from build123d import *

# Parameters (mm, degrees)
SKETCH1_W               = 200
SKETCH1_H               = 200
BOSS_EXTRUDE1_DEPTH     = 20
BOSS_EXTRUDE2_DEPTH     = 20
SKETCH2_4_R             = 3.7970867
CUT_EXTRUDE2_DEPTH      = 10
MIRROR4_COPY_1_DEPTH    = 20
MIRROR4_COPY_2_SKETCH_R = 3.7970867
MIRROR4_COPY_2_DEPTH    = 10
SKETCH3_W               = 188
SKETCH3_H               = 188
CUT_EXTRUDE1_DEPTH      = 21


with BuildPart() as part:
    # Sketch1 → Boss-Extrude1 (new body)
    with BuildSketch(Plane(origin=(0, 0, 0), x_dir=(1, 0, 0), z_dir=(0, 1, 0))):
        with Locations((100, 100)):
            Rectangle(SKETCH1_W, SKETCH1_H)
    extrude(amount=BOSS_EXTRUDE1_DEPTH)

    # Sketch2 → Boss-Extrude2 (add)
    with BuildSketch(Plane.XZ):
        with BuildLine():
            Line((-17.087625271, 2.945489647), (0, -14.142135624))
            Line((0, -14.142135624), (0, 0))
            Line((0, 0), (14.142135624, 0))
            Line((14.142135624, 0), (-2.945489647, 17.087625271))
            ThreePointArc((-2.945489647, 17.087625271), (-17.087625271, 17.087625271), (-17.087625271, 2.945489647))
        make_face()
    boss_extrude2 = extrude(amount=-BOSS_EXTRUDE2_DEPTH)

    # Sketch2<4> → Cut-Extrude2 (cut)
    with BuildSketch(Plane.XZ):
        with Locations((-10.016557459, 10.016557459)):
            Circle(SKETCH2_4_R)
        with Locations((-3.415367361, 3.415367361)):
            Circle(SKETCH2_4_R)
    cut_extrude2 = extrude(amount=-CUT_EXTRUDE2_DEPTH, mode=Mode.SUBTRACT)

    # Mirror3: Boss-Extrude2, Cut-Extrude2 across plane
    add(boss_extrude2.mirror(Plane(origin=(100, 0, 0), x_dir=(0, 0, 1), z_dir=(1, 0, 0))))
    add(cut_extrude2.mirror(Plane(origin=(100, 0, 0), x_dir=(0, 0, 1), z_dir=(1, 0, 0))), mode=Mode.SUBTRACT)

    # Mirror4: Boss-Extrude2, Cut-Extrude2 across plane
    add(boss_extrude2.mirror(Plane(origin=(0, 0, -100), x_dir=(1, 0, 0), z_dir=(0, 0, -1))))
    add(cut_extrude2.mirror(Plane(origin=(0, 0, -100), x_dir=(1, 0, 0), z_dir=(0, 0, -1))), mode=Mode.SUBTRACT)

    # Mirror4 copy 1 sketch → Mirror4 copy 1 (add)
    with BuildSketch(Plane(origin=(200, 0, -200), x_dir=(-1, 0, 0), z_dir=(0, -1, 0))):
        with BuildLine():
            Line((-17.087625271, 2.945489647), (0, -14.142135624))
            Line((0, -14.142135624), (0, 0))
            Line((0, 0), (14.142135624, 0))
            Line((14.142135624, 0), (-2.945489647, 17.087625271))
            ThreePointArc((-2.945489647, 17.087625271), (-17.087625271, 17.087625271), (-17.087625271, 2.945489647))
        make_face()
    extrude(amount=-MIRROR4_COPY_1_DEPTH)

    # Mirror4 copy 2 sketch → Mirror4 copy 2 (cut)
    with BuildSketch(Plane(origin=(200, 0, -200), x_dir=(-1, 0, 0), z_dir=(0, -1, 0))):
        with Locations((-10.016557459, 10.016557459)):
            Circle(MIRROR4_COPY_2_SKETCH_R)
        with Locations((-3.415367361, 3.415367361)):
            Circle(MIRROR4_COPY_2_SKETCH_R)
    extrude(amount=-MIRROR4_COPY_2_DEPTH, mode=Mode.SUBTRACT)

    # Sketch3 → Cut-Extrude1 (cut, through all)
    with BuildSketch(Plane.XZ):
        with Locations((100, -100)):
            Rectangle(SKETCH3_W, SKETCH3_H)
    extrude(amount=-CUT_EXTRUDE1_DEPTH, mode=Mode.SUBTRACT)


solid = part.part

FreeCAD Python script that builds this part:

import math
import FreeCAD as App
import Part
import Sketcher


def add_polygon(sketch, points):
    """Adds a closed chain of lines whose ends are joined by coincident constraints."""
    first, n = sketch.GeometryCount, len(points)
    for a, b in zip(points, points[1:] + points[:1]):
        sketch.addGeometry(Part.LineSegment(App.Vector(*a, 0), App.Vector(*b, 0)), False)
    for i in range(n):
        sketch.addConstraint(Sketcher.Constraint("Coincident", first + i, 2, first + (i + 1) % n, 1))

doc = App.newDocument("Part")
body = doc.addObject("PartDesign::Body", "Body")

sketch1 = body.newObject("Sketcher::SketchObject", "Sketch")
sketch1.AttachmentSupport = (doc.getObject("XZ_Plane"), [""])
sketch1.MapMode = "FlatFace"
add_polygon(sketch1, [(0, -200), (0, 0), (200, 0), (200, -200)])
sketch1.addConstraint(Sketcher.Constraint("Vertical", 0))
sketch1.addConstraint(Sketcher.Constraint("Horizontal", 1))
sketch1.addConstraint(Sketcher.Constraint("Vertical", 2))
sketch1.addConstraint(Sketcher.Constraint("Horizontal", 3))
sketch1.addConstraint(Sketcher.Constraint("Coincident", 0, 2, -1, 1))
sketch1.addConstraint(Sketcher.Constraint("Equal", 3, 0))
sketch1.addConstraint(Sketcher.Constraint("DistanceX", 1, 1, 1, 2, 200.0))
pad1 = body.newObject("PartDesign::Pad", "Pad")
pad1.Profile = sketch1
pad1.Length = 20
pad1.Reversed = True

sketch2 = body.newObject("Sketcher::SketchObject", "Sketch001")
sketch2.AttachmentSupport = (doc.getObject("XZ_Plane"), [""])
sketch2.MapMode = "FlatFace"
sketch2.addGeometry(Part.LineSegment(App.Vector(-17.087625, 2.94549, 0), App.Vector(0, -14.142136, 0)), False)
sketch2.addGeometry(Part.LineSegment(App.Vector(0, -14.142136, 0), App.Vector(0, 0, 0)), False)
sketch2.addGeometry(Part.LineSegment(App.Vector(0, 0, 0), App.Vector(14.142136, 0, 0)), False)
sketch2.addGeometry(Part.LineSegment(App.Vector(14.142136, 0, 0), App.Vector(-2.94549, 17.087625, 0)), False)
sketch2.addGeometry(Part.ArcOfCircle(Part.Circle(App.Vector(-10.016557, 10.016557, 0), App.Vector(0, 0, 1), 10), math.radians(45), math.radians(225)), False)
sketch2.addConstraint(Sketcher.Constraint("Coincident", 0, 2, 1, 1))
sketch2.addConstraint(Sketcher.Constraint("Coincident", 1, 2, 2, 1))
sketch2.addConstraint(Sketcher.Constraint("Coincident", 2, 2, 3, 1))
sketch2.addConstraint(Sketcher.Constraint("Tangent", 3, 2, 4, 1))
sketch2.addConstraint(Sketcher.Constraint("Tangent", 4, 2, 0, 1))
sketch2.addConstraint(Sketcher.Constraint("Vertical", 1))
sketch2.addConstraint(Sketcher.Constraint("Horizontal", 2))
sketch2.addConstraint(Sketcher.Constraint("Coincident", 1, 2, -1, 1))
sketch2.addConstraint(Sketcher.Constraint("Parallel", 0, 3))
sketch2.addConstraint(Sketcher.Constraint("Equal", 2, 1))
sketch2.addConstraint(Sketcher.Constraint("Equal", 0, 3))
sketch2.addConstraint(Sketcher.Constraint("Radius", 4, 10.0))
sketch2.addConstraint(Sketcher.Constraint("Distance", 0, 24.165551))
pad2 = body.newObject("PartDesign::Pad", "Pad001")
pad2.Profile = sketch2
pad2.Length = 20
pad2.Reversed = True

sketch3 = body.newObject("Sketcher::SketchObject", "Sketch002")
sketch3.AttachmentSupport = (doc.getObject("XZ_Plane"), [""])
sketch3.MapMode = "FlatFace"
sketch3.addGeometry(Part.Circle(App.Vector(-10.016557, 10.016557, 0), App.Vector(0, 0, 1), 3.797087), False)
sketch3.addGeometry(Part.Circle(App.Vector(-3.415367, 3.415367, 0), App.Vector(0, 0, 1), 3.797087), False)
sketch3.addConstraint(Sketcher.Constraint("Equal", 0, 1))
sketch3.addConstraint(Sketcher.Constraint("Diameter", 0, 7.594173))
sketch3.addConstraint(Sketcher.Constraint("DistanceX", 0, 3, 1, 3, 6.60119))
sketch3.addConstraint(Sketcher.Constraint("DistanceY", 1, 3, 0, 3, 6.60119))
sketch3.addConstraint(Sketcher.Constraint("DistanceX", 0, 3, -1, 1, 10.016557))
sketch3.addConstraint(Sketcher.Constraint("DistanceY", -1, 1, 0, 3, 10.016557))
pocket1 = body.newObject("PartDesign::Pocket", "Pocket")
pocket1.Profile = sketch3
pocket1.Length = 10
doc.recompute()

datumplane = body.newObject("PartDesign::Plane", "DatumPlane")
datumplane.AttachmentSupport = (doc.getObject("YZ_Plane"), [""])
datumplane.MapMode = "FlatFace"
datumplane.AttachmentOffset = App.Placement(App.Vector(0, 0, 100), App.Rotation())
mirrored = body.newObject("PartDesign::Mirrored", "Mirrored")
mirrored.Originals = [pad2, pocket1]
mirrored.MirrorPlane = (datumplane, [""])
body.Tip = mirrored
doc.recompute()

datumplane2 = body.newObject("PartDesign::Plane", "DatumPlane001")
datumplane2.AttachmentSupport = (doc.getObject("XY_Plane"), [""])
datumplane2.MapMode = "FlatFace"
datumplane2.AttachmentOffset = App.Placement(App.Vector(0, 0, -100), App.Rotation())
mirrored2 = body.newObject("PartDesign::Mirrored", "Mirrored001")
mirrored2.Originals = [pad2, pocket1]
mirrored2.MirrorPlane = (datumplane2, [""])
body.Tip = mirrored2

sketch4 = body.newObject("Sketcher::SketchObject", "Sketch003")
sketch4.AttachmentSupport = (doc.getObject("XZ_Plane"), [""])
sketch4.MapMode = "FlatFace"
sketch4.addGeometry(Part.LineSegment(App.Vector(217.087625, -202.94549, 0), App.Vector(200, -185.857864, 0)), False)
sketch4.addGeometry(Part.LineSegment(App.Vector(200, -185.857864, 0), App.Vector(200, -200, 0)), False)
sketch4.addGeometry(Part.LineSegment(App.Vector(200, -200, 0), App.Vector(185.857864, -200, 0)), False)
sketch4.addGeometry(Part.LineSegment(App.Vector(185.857864, -200, 0), App.Vector(202.94549, -217.087625, 0)), False)
sketch4.addGeometry(Part.ArcOfCircle(Part.Circle(App.Vector(210.016557, -210.016557, 0), App.Vector(0, 0, 1), 10), math.radians(-135), math.radians(45)), False)
sketch4.addConstraint(Sketcher.Constraint("Coincident", 0, 2, 1, 1))
sketch4.addConstraint(Sketcher.Constraint("Coincident", 1, 2, 2, 1))
sketch4.addConstraint(Sketcher.Constraint("Coincident", 2, 2, 3, 1))
sketch4.addConstraint(Sketcher.Constraint("Tangent", 3, 2, 4, 1))
sketch4.addConstraint(Sketcher.Constraint("Tangent", 4, 2, 0, 1))
sketch4.addConstraint(Sketcher.Constraint("Vertical", 1))
sketch4.addConstraint(Sketcher.Constraint("Horizontal", 2))
sketch4.addConstraint(Sketcher.Constraint("Parallel", 0, 3))
sketch4.addConstraint(Sketcher.Constraint("Equal", 2, 1))
sketch4.addConstraint(Sketcher.Constraint("Equal", 0, 3))
sketch4.addConstraint(Sketcher.Constraint("Radius", 4, 10.0))
sketch4.addConstraint(Sketcher.Constraint("DistanceX", -1, 1, 0, 2, 200.0))
sketch4.addConstraint(Sketcher.Constraint("DistanceY", 1, 2, -1, 1, 200.0))
sketch4.addConstraint(Sketcher.Constraint("Distance", 0, 24.165551))
pad3 = body.newObject("PartDesign::Pad", "Pad002")
pad3.Profile = sketch4
pad3.Length = 20
pad3.Reversed = True

sketch5 = body.newObject("Sketcher::SketchObject", "Sketch004")
sketch5.AttachmentSupport = (doc.getObject("XZ_Plane"), [""])
sketch5.MapMode = "FlatFace"
sketch5.addGeometry(Part.Circle(App.Vector(210.016557, -210.016557, 0), App.Vector(0, 0, 1), 3.797087), False)
sketch5.addGeometry(Part.Circle(App.Vector(203.415367, -203.415367, 0), App.Vector(0, 0, 1), 3.797087), False)
sketch5.addConstraint(Sketcher.Constraint("Equal", 0, 1))
sketch5.addConstraint(Sketcher.Constraint("Diameter", 0, 7.594173))
sketch5.addConstraint(Sketcher.Constraint("DistanceX", 1, 3, 0, 3, 6.60119))
sketch5.addConstraint(Sketcher.Constraint("DistanceY", 0, 3, 1, 3, 6.60119))
sketch5.addConstraint(Sketcher.Constraint("DistanceX", -1, 1, 0, 3, 210.016557))
sketch5.addConstraint(Sketcher.Constraint("DistanceY", 0, 3, -1, 1, 210.016557))
pocket2 = body.newObject("PartDesign::Pocket", "Pocket001")
pocket2.Profile = sketch5
pocket2.Length = 10

sketch6 = body.newObject("Sketcher::SketchObject", "Sketch005")
sketch6.AttachmentSupport = (doc.getObject("XZ_Plane"), [""])
sketch6.MapMode = "FlatFace"
add_polygon(sketch6, [(6, -6), (6, -194), (194, -194), (194, -6)])
sketch6.addConstraint(Sketcher.Constraint("Vertical", 0))
sketch6.addConstraint(Sketcher.Constraint("Horizontal", 1))
sketch6.addConstraint(Sketcher.Constraint("Vertical", 2))
sketch6.addConstraint(Sketcher.Constraint("Horizontal", 3))
sketch6.addConstraint(Sketcher.Constraint("Equal", 3, 0))
sketch6.addConstraint(Sketcher.Constraint("DistanceX", 1, 1, 1, 2, 188.0))
sketch6.addConstraint(Sketcher.Constraint("DistanceX", -1, 1, 0, 2, 6.0))
sketch6.addConstraint(Sketcher.Constraint("DistanceY", 0, 2, -1, 1, 194.0))
pocket3 = body.newObject("PartDesign::Pocket", "Pocket002")
pocket3.Profile = sketch6
pocket3.Type = "ThroughAll"

doc.recompute()
